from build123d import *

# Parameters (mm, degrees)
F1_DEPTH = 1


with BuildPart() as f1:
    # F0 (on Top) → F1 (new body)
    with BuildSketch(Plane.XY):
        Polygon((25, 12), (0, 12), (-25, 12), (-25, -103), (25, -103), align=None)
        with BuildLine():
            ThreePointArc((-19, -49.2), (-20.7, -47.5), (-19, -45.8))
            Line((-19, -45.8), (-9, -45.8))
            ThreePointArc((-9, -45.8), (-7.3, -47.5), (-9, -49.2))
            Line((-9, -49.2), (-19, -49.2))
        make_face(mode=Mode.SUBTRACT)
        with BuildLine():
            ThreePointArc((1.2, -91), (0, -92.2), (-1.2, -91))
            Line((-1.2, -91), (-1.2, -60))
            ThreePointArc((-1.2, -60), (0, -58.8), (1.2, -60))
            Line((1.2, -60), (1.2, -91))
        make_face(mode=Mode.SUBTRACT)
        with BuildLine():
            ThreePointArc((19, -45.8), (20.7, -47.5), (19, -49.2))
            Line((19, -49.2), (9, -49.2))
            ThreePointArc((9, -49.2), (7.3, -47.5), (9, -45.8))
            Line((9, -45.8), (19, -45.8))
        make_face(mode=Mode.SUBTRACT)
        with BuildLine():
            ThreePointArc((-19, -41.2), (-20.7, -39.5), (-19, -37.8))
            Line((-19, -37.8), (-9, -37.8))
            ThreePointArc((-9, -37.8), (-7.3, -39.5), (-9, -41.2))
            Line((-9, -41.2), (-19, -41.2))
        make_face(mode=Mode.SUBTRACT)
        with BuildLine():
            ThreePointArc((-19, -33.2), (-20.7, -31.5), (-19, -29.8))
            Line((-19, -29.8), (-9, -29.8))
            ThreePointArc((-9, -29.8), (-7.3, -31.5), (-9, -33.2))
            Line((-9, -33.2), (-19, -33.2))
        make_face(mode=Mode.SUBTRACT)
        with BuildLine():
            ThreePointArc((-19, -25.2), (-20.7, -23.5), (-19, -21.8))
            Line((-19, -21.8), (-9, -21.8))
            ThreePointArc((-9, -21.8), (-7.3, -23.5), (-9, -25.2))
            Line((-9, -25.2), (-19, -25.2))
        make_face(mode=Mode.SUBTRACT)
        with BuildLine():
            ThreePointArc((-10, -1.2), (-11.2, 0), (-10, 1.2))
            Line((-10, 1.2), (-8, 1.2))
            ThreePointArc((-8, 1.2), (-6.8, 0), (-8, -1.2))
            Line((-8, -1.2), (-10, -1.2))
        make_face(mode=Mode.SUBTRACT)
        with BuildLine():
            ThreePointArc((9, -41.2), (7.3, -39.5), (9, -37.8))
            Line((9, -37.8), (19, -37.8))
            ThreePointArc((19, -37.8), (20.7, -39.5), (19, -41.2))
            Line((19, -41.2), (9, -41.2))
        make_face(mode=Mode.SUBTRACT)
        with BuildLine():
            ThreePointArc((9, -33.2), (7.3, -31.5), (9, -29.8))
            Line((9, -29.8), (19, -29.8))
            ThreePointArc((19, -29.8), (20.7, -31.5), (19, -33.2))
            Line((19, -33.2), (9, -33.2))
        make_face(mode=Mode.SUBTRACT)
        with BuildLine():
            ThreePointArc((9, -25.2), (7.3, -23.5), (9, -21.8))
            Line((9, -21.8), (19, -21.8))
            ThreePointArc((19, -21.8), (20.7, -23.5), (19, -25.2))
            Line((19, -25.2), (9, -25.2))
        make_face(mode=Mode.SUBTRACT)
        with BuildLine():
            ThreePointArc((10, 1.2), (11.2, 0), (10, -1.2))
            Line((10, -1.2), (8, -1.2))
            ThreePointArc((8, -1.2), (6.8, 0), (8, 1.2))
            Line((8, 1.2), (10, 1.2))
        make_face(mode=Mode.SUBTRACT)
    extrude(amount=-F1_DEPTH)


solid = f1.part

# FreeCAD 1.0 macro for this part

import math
import FreeCAD as App
import Part
import Sketcher
Q = App.Units.Quantity


def add_polygon(sketch, points):
    """Adds a closed chain of lines whose ends are joined by coincident constraints."""
    first, n = sketch.GeometryCount, len(points)
    for a, b in zip(points, points[1:] + points[:1]):
        sketch.addGeometry(Part.LineSegment(App.Vector(*a, 0), App.Vector(*b, 0)), False)
    for i in range(n):
        sketch.addConstraint(Sketcher.Constraint("Coincident", first + i, 2, first + (i + 1) % n, 1))

doc = App.newDocument("Part")
body = doc.addObject("PartDesign::Body", "Body")

# Sketch on XY plane
sketch1 = body.newObject("Sketcher::SketchObject", "Sketch")
sketch1.AttachmentSupport = (doc.getObject("XY_Plane"), [""])
sketch1.MapMode = "FlatFace"
add_polygon(sketch1, [(25, 12), (-25, 12), (-25, -103), (25, -103)])  # lines 0-3
sketch1.addGeometry(Part.LineSegment(App.Vector(-9, -49.2, 0), App.Vector(-19, -49.2, 0)), False)  # 4
sketch1.addGeometry(Part.ArcOfCircle(Part.Circle(App.Vector(-19, -47.5, 0), App.Vector(0, 0, 1), 1.7), math.radians(90), math.radians(270)), False)  # 5
sketch1.addGeometry(Part.LineSegment(App.Vector(-19, -45.8, 0), App.Vector(-9, -45.8, 0)), False)  # 6
sketch1.addGeometry(Part.ArcOfCircle(Part.Circle(App.Vector(-9, -47.5, 0), App.Vector(0, 0, 1), 1.7), math.radians(-90), math.radians(90)), False)  # 7
sketch1.addGeometry(Part.LineSegment(App.Vector(1.2, -60, 0), App.Vector(1.2, -91, 0)), False)  # 8
sketch1.addGeometry(Part.ArcOfCircle(Part.Circle(App.Vector(0, -91, 0), App.Vector(0, 0, 1), 1.2), math.radians(180), math.radians(360)), False)  # 9
sketch1.addGeometry(Part.LineSegment(App.Vector(-1.2, -91, 0), App.Vector(-1.2, -60, 0)), False)  # 10
sketch1.addGeometry(Part.ArcOfCircle(Part.Circle(App.Vector(0, -60, 0), App.Vector(0, 0, 1), 1.2), math.radians(0), math.radians(180)), False)  # 11
sketch1.addGeometry(Part.LineSegment(App.Vector(9, -45.8, 0), App.Vector(19, -45.8, 0)), False)  # 12
sketch1.addGeometry(Part.ArcOfCircle(Part.Circle(App.Vector(19, -47.5, 0), App.Vector(0, 0, 1), 1.7), math.radians(-90), math.radians(90)), False)  # 13
sketch1.addGeometry(Part.LineSegment(App.Vector(19, -49.2, 0), App.Vector(9, -49.2, 0)), False)  # 14
sketch1.addGeometry(Part.ArcOfCircle(Part.Circle(App.Vector(9, -47.5, 0), App.Vector(0, 0, 1), 1.7), math.radians(90), math.radians(270)), False)  # 15
sketch1.addGeometry(Part.LineSegment(App.Vector(-9, -41.2, 0), App.Vector(-19, -41.2, 0)), False)  # 16
sketch1.addGeometry(Part.ArcOfCircle(Part.Circle(App.Vector(-19, -39.5, 0), App.Vector(0, 0, 1), 1.7), math.radians(90), math.radians(270)), False)  # 17
sketch1.addGeometry(Part.LineSegment(App.Vector(-19, -37.8, 0), App.Vector(-9, -37.8, 0)), False)  # 18
sketch1.addGeometry(Part.ArcOfCircle(Part.Circle(App.Vector(-9, -39.5, 0), App.Vector(0, 0, 1), 1.7), math.radians(-90), math.radians(90)), False)  # 19
sketch1.addGeometry(Part.LineSegment(App.Vector(-9, -33.2, 0), App.Vector(-19, -33.2, 0)), False)  # 20
sketch1.addGeometry(Part.ArcOfCircle(Part.Circle(App.Vector(-19, -31.5, 0), App.Vector(0, 0, 1), 1.7), math.radians(90), math.radians(270)), False)  # 21
sketch1.addGeometry(Part.LineSegment(App.Vector(-19, -29.8, 0), App.Vector(-9, -29.8, 0)), False)  # 22
sketch1.addGeometry(Part.ArcOfCircle(Part.Circle(App.Vector(-9, -31.5, 0), App.Vector(0, 0, 1), 1.7), math.radians(-90), math.radians(90)), False)  # 23
sketch1.addGeometry(Part.LineSegment(App.Vector(-9, -25.2, 0), App.Vector(-19, -25.2, 0)), False)  # 24
sketch1.addGeometry(Part.ArcOfCircle(Part.Circle(App.Vector(-19, -23.5, 0), App.Vector(0, 0, 1), 1.7), math.radians(90), math.radians(270)), False)  # 25
sketch1.addGeometry(Part.LineSegment(App.Vector(-19, -21.8, 0), App.Vector(-9, -21.8, 0)), False)  # 26
sketch1.addGeometry(Part.ArcOfCircle(Part.Circle(App.Vector(-9, -23.5, 0), App.Vector(0, 0, 1), 1.7), math.radians(-90), math.radians(90)), False)  # 27
sketch1.addGeometry(Part.LineSegment(App.Vector(-8, -1.2, 0), App.Vector(-10, -1.2, 0)), False)  # 28
sketch1.addGeometry(Part.ArcOfCircle(Part.Circle(App.Vector(-10, 0, 0), App.Vector(0, 0, 1), 1.2), math.radians(90), math.radians(270)), False)  # 29
sketch1.addGeometry(Part.LineSegment(App.Vector(-10, 1.2, 0), App.Vector(-8, 1.2, 0)), False)  # 30
sketch1.addGeometry(Part.ArcOfCircle(Part.Circle(App.Vector(-8, 0, 0), App.Vector(0, 0, 1), 1.2), math.radians(-90), math.radians(90)), False)  # 31
sketch1.addGeometry(Part.LineSegment(App.Vector(19, -41.2, 0), App.Vector(9, -41.2, 0)), False)  # 32
sketch1.addGeometry(Part.ArcOfCircle(Part.Circle(App.Vector(9, -39.5, 0), App.Vector(0, 0, 1), 1.7), math.radians(90), math.radians(270)), False)  # 33
sketch1.addGeometry(Part.LineSegment(App.Vector(9, -37.8, 0), App.Vector(19, -37.8, 0)), False)  # 34
sketch1.addGeometry(Part.ArcOfCircle(Part.Circle(App.Vector(19, -39.5, 0), App.Vector(0, 0, 1), 1.7), math.radians(-90), math.radians(90)), False)  # 35
sketch1.addGeometry(Part.LineSegment(App.Vector(19, -33.2, 0), App.Vector(9, -33.2, 0)), False)  # 36
sketch1.addGeometry(Part.ArcOfCircle(Part.Circle(App.Vector(9, -31.5, 0), App.Vector(0, 0, 1), 1.7), math.radians(90), math.radians(270)), False)  # 37
sketch1.addGeometry(Part.LineSegment(App.Vector(9, -29.8, 0), App.Vector(19, -29.8, 0)), False)  # 38
sketch1.addGeometry(Part.ArcOfCircle(Part.Circle(App.Vector(19, -31.5, 0), App.Vector(0, 0, 1), 1.7), math.radians(-90), math.radians(90)), False)  # 39
sketch1.addGeometry(Part.LineSegment(App.Vector(19, -25.2, 0), App.Vector(9, -25.2, 0)), False)  # 40
sketch1.addGeometry(Part.ArcOfCircle(Part.Circle(App.Vector(9, -23.5, 0), App.Vector(0, 0, 1), 1.7), math.radians(90), math.radians(270)), False)  # 41
sketch1.addGeometry(Part.LineSegment(App.Vector(9, -21.8, 0), App.Vector(19, -21.8, 0)), False)  # 42
sketch1.addGeometry(Part.ArcOfCircle(Part.Circle(App.Vector(19, -23.5, 0), App.Vector(0, 0, 1), 1.7), math.radians(-90), math.radians(90)), False)  # 43
sketch1.addGeometry(Part.LineSegment(App.Vector(8, 1.2, 0), App.Vector(10, 1.2, 0)), False)  # 44
sketch1.addGeometry(Part.ArcOfCircle(Part.Circle(App.Vector(10, 0, 0), App.Vector(0, 0, 1), 1.2), math.radians(-90), math.radians(90)), False)  # 45
sketch1.addGeometry(Part.LineSegment(App.Vector(10, -1.2, 0), App.Vector(8, -1.2, 0)), False)  # 46
sketch1.addGeometry(Part.ArcOfCircle(Part.Circle(App.Vector(8, 0, 0), App.Vector(0, 0, 1), 1.2), math.radians(90), math.radians(270)), False)  # 47
sketch1.addConstraint([
    Sketcher.Constraint("Tangent", 4, 2, 5, 2),
    Sketcher.Constraint("Tangent", 5, 1, 6, 1),
    Sketcher.Constraint("Tangent", 6, 2, 7, 2),
    Sketcher.Constraint("Tangent", 7, 1, 4, 1),
    Sketcher.Constraint("Tangent", 8, 2, 9, 2),
    Sketcher.Constraint("Tangent", 9, 1, 10, 1),
    Sketcher.Constraint("Tangent", 10, 2, 11, 2),
    Sketcher.Constraint("Tangent", 11, 1, 8, 1),
    Sketcher.Constraint("Tangent", 12, 2, 13, 2),
    Sketcher.Constraint("Tangent", 13, 1, 14, 1),
    Sketcher.Constraint("Tangent", 14, 2, 15, 2),
    Sketcher.Constraint("Tangent", 15, 1, 12, 1),
    Sketcher.Constraint("Tangent", 16, 2, 17, 2),
    Sketcher.Constraint("Tangent", 17, 1, 18, 1),
    Sketcher.Constraint("Tangent", 18, 2, 19, 2),
    Sketcher.Constraint("Tangent", 19, 1, 16, 1),
    Sketcher.Constraint("Tangent", 20, 2, 21, 2),
    Sketcher.Constraint("Tangent", 21, 1, 22, 1),
    Sketcher.Constraint("Tangent", 22, 2, 23, 2),
    Sketcher.Constraint("Tangent", 23, 1, 20, 1),
    Sketcher.Constraint("Tangent", 24, 2, 25, 2),
    Sketcher.Constraint("Tangent", 25, 1, 26, 1),
    Sketcher.Constraint("Tangent", 26, 2, 27, 2),
    Sketcher.Constraint("Tangent", 27, 1, 24, 1),
    Sketcher.Constraint("Tangent", 28, 2, 29, 2),
    Sketcher.Constraint("Tangent", 29, 1, 30, 1),
    Sketcher.Constraint("Tangent", 30, 2, 31, 2),
    Sketcher.Constraint("Tangent", 31, 1, 28, 1),
    Sketcher.Constraint("Tangent", 32, 2, 33, 2),
    Sketcher.Constraint("Tangent", 33, 1, 34, 1),
    Sketcher.Constraint("Tangent", 34, 2, 35, 2),
    Sketcher.Constraint("Tangent", 35, 1, 32, 1),
    Sketcher.Constraint("Tangent", 36, 2, 37, 2),
    Sketcher.Constraint("Tangent", 37, 1, 38, 1),
    Sketcher.Constraint("Tangent", 38, 2, 39, 2),
    Sketcher.Constraint("Tangent", 39, 1, 36, 1),
    Sketcher.Constraint("Tangent", 40, 2, 41, 2),
    Sketcher.Constraint("Tangent", 41, 1, 42, 1),
    Sketcher.Constraint("Tangent", 42, 2, 43, 2),
    Sketcher.Constraint("Tangent", 43, 1, 40, 1),
    Sketcher.Constraint("Tangent", 44, 2, 45, 2),
    Sketcher.Constraint("Tangent", 45, 1, 46, 1),
    Sketcher.Constraint("Tangent", 46, 2, 47, 2),
    Sketcher.Constraint("Tangent", 47, 1, 44, 1),
    Sketcher.Constraint("Horizontal", 0),
    Sketcher.Constraint("Vertical", 1),
    Sketcher.Constraint("Horizontal", 2),
    Sketcher.Constraint("Vertical", 3),
    Sketcher.Constraint("Horizontal", 4),
    Sketcher.Constraint("Horizontal", 6),
    Sketcher.Constraint("Vertical", 8),
    Sketcher.Constraint("Vertical", 10),
    Sketcher.Constraint("Horizontal", 12),
    Sketcher.Constraint("Horizontal", 14),
    Sketcher.Constraint("Horizontal", 16),
    Sketcher.Constraint("Horizontal", 18),
    Sketcher.Constraint("Horizontal", 20),
    Sketcher.Constraint("Horizontal", 22),
    Sketcher.Constraint("Horizontal", 24),
    Sketcher.Constraint("Horizontal", 26),
    Sketcher.Constraint("Horizontal", 28),
    Sketcher.Constraint("Horizontal", 30),
    Sketcher.Constraint("Horizontal", 32),
    Sketcher.Constraint("Horizontal", 34),
    Sketcher.Constraint("Horizontal", 36),
    Sketcher.Constraint("Horizontal", 38),
    Sketcher.Constraint("Horizontal", 40),
    Sketcher.Constraint("Horizontal", 42),
    Sketcher.Constraint("Horizontal", 44),
    Sketcher.Constraint("Horizontal", 46),
    Sketcher.Constraint("Equal", 7, 13),
    Sketcher.Constraint("Equal", 15, 17),
    Sketcher.Constraint("Equal", 19, 21),
    Sketcher.Constraint("Equal", 23, 25),
    Sketcher.Constraint("Equal", 11, 29),
    Sketcher.Constraint("Equal", 27, 33),
    Sketcher.Constraint("Equal", 35, 37),
    Sketcher.Constraint("Equal", 39, 41),
    Sketcher.Constraint("Equal", 31, 45),
    Sketcher.Constraint("Symmetric", 29, 3, 45, 3, -1, 1),
    Sketcher.Constraint("Symmetric", 5, 3, 13, 3, -2),
    Sketcher.Constraint("Symmetric", 19, 3, 33, 3, -2),
    Sketcher.Constraint("Symmetric", 23, 3, 37, 3, -2),
    Sketcher.Constraint("Symmetric", 27, 3, 41, 3, -2),
    Sketcher.Constraint("Symmetric", 31, 3, 47, 3, -2),
    Sketcher.Constraint("PointOnObject", 9, 3, -2),
    Sketcher.Constraint("Vertical", 5, 3, 17, 3),
    Sketcher.Constraint("Vertical", 7, 3, 19, 3),
    Sketcher.Constraint("Vertical", 17, 3, 21, 3),
    Sketcher.Constraint("Vertical", 19, 3, 23, 3),
    Sketcher.Constraint("Vertical", 21, 3, 25, 3),
    Sketcher.Constraint("Vertical", 23, 3, 27, 3),
    Sketcher.Constraint("Vertical", 15, 3, 33, 3),
    Sketcher.Constraint("Vertical", 13, 3, 35, 3),
    Sketcher.Constraint("Vertical", 35, 3, 39, 3),
    Sketcher.Constraint("Vertical", 39, 3, 43, 3),
    Sketcher.Constraint("Radius", 5, Q("1.7 mm")),
    Sketcher.Constraint("Radius", 9, Q("1.2 mm")),
    Sketcher.Constraint("DistanceX", 0, 2, 0, 1, Q("50 mm")),
    Sketcher.Constraint("DistanceX", 4, 2, 4, 1, Q("10 mm")),
    Sketcher.Constraint("DistanceX", 28, 2, 28, 1, Q("2 mm")),
    Sketcher.Constraint("DistanceY", 1, 2, 1, 1, Q("115 mm")),
    Sketcher.Constraint("DistanceY", 8, 2, 8, 1, Q("31 mm")),
    Sketcher.Constraint("DistanceX", 5, 3, -1, 1, Q("19 mm")),
    Sketcher.Constraint("DistanceY", 9, 3, -1, 1, Q("91 mm")),
    Sketcher.Constraint("DistanceX", 29, 3, -1, 1, Q("10 mm")),
    Sketcher.Constraint("DistanceX", 0, 2, -1, 1, Q("25 mm")),
    Sketcher.Constraint("DistanceY", -1, 1, 0, 2, Q("12 mm")),
    Sketcher.Constraint("DistanceY", 5, 3, -1, 1, Q("47.5 mm")),
    Sketcher.Constraint("DistanceY", 17, 3, -1, 1, Q("39.5 mm")),
    Sketcher.Constraint("DistanceY", 21, 3, -1, 1, Q("31.5 mm")),
    Sketcher.Constraint("DistanceY", 25, 3, -1, 1, Q("23.5 mm")),
])
pad1 = body.newObject("PartDesign::Pad", "Pad")
pad1.Profile = sketch1
pad1.Length = 1
pad1.Reversed = True

doc.recompute()
